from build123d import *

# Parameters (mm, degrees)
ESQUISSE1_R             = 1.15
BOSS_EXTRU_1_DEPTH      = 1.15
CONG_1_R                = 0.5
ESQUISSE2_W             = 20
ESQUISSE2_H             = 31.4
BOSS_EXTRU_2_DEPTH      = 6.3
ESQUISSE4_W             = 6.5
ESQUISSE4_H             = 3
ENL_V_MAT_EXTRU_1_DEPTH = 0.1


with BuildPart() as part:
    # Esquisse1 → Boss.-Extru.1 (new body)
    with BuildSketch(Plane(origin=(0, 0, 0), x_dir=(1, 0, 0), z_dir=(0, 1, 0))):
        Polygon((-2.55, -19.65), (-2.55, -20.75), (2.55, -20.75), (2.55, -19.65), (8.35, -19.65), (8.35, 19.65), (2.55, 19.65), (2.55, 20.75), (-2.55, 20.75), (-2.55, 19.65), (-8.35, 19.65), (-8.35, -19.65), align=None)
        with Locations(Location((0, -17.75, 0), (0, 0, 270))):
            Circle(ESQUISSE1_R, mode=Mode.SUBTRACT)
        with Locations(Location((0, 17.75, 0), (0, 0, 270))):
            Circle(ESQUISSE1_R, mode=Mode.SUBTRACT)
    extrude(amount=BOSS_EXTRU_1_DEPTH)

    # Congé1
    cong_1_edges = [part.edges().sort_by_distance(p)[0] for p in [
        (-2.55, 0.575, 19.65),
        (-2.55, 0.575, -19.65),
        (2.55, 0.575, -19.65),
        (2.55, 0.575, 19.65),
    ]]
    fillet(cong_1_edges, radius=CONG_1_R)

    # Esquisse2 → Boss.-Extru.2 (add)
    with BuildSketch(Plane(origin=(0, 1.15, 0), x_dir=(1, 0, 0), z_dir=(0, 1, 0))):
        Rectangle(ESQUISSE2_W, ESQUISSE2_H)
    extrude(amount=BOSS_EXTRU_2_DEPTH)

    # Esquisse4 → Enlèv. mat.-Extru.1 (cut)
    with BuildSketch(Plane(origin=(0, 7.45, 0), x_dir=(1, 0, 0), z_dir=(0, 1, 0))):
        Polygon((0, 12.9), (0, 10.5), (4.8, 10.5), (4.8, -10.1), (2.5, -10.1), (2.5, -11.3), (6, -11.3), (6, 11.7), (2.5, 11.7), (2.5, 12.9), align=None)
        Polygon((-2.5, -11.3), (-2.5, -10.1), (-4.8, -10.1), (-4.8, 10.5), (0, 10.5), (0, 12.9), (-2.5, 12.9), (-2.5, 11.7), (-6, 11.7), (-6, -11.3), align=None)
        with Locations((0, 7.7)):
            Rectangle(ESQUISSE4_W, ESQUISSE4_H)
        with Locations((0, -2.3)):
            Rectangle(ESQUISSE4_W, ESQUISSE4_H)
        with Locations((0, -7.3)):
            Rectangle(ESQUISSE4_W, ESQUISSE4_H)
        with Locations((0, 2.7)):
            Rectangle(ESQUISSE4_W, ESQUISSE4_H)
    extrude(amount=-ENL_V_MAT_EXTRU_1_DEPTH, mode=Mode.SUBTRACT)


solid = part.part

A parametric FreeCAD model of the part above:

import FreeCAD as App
import Part
import Sketcher
Q = App.Units.Quantity


def edges_at(feature, points):
    """Names of the edges that pass closest to the given points."""
    edges = feature.Shape.Edges
    near = lambda p: min(range(len(edges)), key=lambda i: edges[i].distToShape(Part.Vertex(*p))[0])
    return sorted({f"Edge{near(p) + 1}" for p in points})

doc = App.newDocument("Part")
body = doc.addObject("PartDesign::Body", "Body")

# Sketch on XZ plane
sketch1 = doc.addObject("Sketcher::SketchObject", "Sketch")
body.addObject(sketch1)
sketch1.AttachmentSupport = (doc.XZ_Plane, [""])
sketch1.MapMode = "FlatFace"
sketch1.addGeometry(Part.LineSegment(App.Vector(-2.5, 19.6, 0), App.Vector(-2.5, 20.8, 0)), False)
sketch1.addGeometry(Part.LineSegment(App.Vector(-2.5, 20.8, 0), App.Vector(2.5, 20.8, 0)), False)
sketch1.addGeometry(Part.LineSegment(App.Vector(2.5, 20.8, 0), App.Vector(2.5, 19.6, 0)), False)
sketch1.addGeometry(Part.LineSegment(App.Vector(2.5, 19.6, 0), App.Vector(8.3, 19.6, 0)), False)
sketch1.addGeometry(Part.LineSegment(App.Vector(8.3, 19.6, 0), App.Vector(8.3, -19.6, 0)), False)
sketch1.addGeometry(Part.LineSegment(App.Vector(8.3, -19.6, 0), App.Vector(2.5, -19.6, 0)), False)
sketch1.addGeometry(Part.LineSegment(App.Vector(2.5, -19.6, 0), App.Vector(2.5, -20.8, 0)), False)
sketch1.addGeometry(Part.LineSegment(App.Vector(2.5, -20.8, 0), App.Vector(-2.5, -20.8, 0)), False)
sketch1.addGeometry(Part.LineSegment(App.Vector(-2.5, -20.8, 0), App.Vector(-2.5, -19.6, 0)), False)
sketch1.addGeometry(Part.LineSegment(App.Vector(-2.5, -19.6, 0), App.Vector(-8.3, -19.6, 0)), False)
sketch1.addGeometry(Part.LineSegment(App.Vector(-8.3, -19.6, 0), App.Vector(-8.3, 19.6, 0)), False)
sketch1.addGeometry(Part.LineSegment(App.Vector(-8.3, 19.6, 0), App.Vector(-2.5, 19.6, 0)), False)
sketch1.addGeometry(Part.Circle(App.Vector(0, 17.8, 0), App.Vector(0, 0, 1), 1.1), False)
sketch1.addGeometry(Part.Circle(App.Vector(0, -17.8, 0), App.Vector(0, 0, 1), 1.1), False)
sketch1.addConstraint(Sketcher.Constraint("Coincident", 0, 2, 1, 1))
sketch1.addConstraint(Sketcher.Constraint("Coincident", 1, 2, 2, 1))
sketch1.addConstraint(Sketcher.Constraint("Coincident", 2, 2, 3, 1))
sketch1.addConstraint(Sketcher.Constraint("Coincident", 3, 2, 4, 1))
sketch1.addConstraint(Sketcher.Constraint("Coincident", 4, 2, 5, 1))
sketch1.addConstraint(Sketcher.Constraint("Coincident", 5, 2, 6, 1))
sketch1.addConstraint(Sketcher.Constraint("Coincident", 6, 2, 7, 1))
sketch1.addConstraint(Sketcher.Constraint("Coincident", 7, 2, 8, 1))
sketch1.addConstraint(Sketcher.Constraint("Coincident", 8, 2, 9, 1))
sketch1.addConstraint(Sketcher.Constraint("Coincident", 9, 2, 10, 1))
sketch1.addConstraint(Sketcher.Constraint("Coincident", 10, 2, 11, 1))
sketch1.addConstraint(Sketcher.Constraint("Coincident", 11, 2, 0, 1))
sketch1.addConstraint(Sketcher.Constraint("Vertical", 0))
sketch1.addConstraint(Sketcher.Constraint("Horizontal", 1))
sketch1.addConstraint(Sketcher.Constraint("Vertical", 2))
sketch1.addConstraint(Sketcher.Constraint("Horizontal", 3))
sketch1.addConstraint(Sketcher.Constraint("Vertical", 4))
sketch1.addConstraint(Sketcher.Constraint("Horizontal", 5))
sketch1.addConstraint(Sketcher.Constraint("Vertical", 6))
sketch1.addConstraint(Sketcher.Constraint("Horizontal", 7))
sketch1.addConstraint(Sketcher.Constraint("Vertical", 8))
sketch1.addConstraint(Sketcher.Constraint("Horizontal", 9))
sketch1.addConstraint(Sketcher.Constraint("Vertical", 10))
sketch1.addConstraint(Sketcher.Constraint("Horizontal", 11))
sketch1.addConstraint(Sketcher.Constraint("Equal", 12, 13))
sketch1.addConstraint(Sketcher.Constraint("Symmetric", 12, 3, 13, 3, -1, 1))
sketch1.addConstraint(Sketcher.Constraint("Symmetric", 0, 2, 6, 2, -1, 1))
sketch1.addConstraint(Sketcher.Constraint("Symmetric", 2, 2, 8, 2, -1, 1))
sketch1.addConstraint(Sketcher.Constraint("Symmetric", 4, 2, 10, 2, -1, 1))
sketch1.addConstraint(Sketcher.Constraint("Symmetric", 5, 2, 8, 2, -2))
sketch1.addConstraint(Sketcher.Constraint("PointOnObject", 12, 3, -2))
sketch1.addConstraint(Sketcher.Constraint("Diameter", 12, Q("2.3 mm")))
sketch1.addConstraint(Sketcher.Constraint("DistanceX", 1, 1, 1, 2, Q("5.1 mm")))
sketch1.addConstraint(Sketcher.Constraint("DistanceX", 3, 1, 3, 2, Q("5.8 mm")))
sketch1.addConstraint(Sketcher.Constraint("DistanceY", 0, 1, 0, 2, Q("1.1 mm")))
sketch1.addConstraint(Sketcher.Constraint("DistanceY", 4, 2, 4, 1, Q("39.3 mm")))
sketch1.addConstraint(Sketcher.Constraint("DistanceY", 12, 3, 0, 2, Q("3 mm")))
pad1 = doc.addObject("PartDesign::Pad", "Pad")
body.addObject(pad1)
pad1.Profile = sketch1
pad1.Length = 1.15
pad1.Reversed = True
doc.recompute()

fillet = doc.addObject("PartDesign::Fillet", "Fillet")
body.addObject(fillet)
fillet.Base = (pad1, edges_at(pad1, [
    (-2.55, 0.575, 19.65),
    (-2.55, 0.575, -19.65),
    (2.55, 0.575, -19.65),
    (2.55, 0.575, 19.65),
]))
fillet.Radius = 0.5

# Sketch on XZ plane
sketch2 = doc.addObject("Sketcher::SketchObject", "Sketch001")
body.addObject(sketch2)
sketch2.AttachmentSupport = (doc.XZ_Plane, [""])
sketch2.MapMode = "FlatFace"
sketch2.AttachmentOffset = App.Placement(App.Vector(0, 0, -1.15), App.Rotation())
sketch2.addGeometry(Part.LineSegment(App.Vector(-10, -16, 0), App.Vector(-10, 16, 0)), False)
sketch2.addGeometry(Part.LineSegment(App.Vector(-10, 16, 0), App.Vector(10, 16, 0)), False)
sketch2.addGeometry(Part.LineSegment(App.Vector(10, 16, 0), App.Vector(10, -16, 0)), False)
sketch2.addGeometry(Part.LineSegment(App.Vector(10, -16, 0), App.Vector(-10, -16, 0)), False)
sketch2.addConstraint(Sketcher.Constraint("Coincident", 0, 2, 1, 1))
sketch2.addConstraint(Sketcher.Constraint("Coincident", 1, 2, 2, 1))
sketch2.addConstraint(Sketcher.Constraint("Coincident", 2, 2, 3, 1))
sketch2.addConstraint(Sketcher.Constraint("Coincident", 3, 2, 0, 1))
sketch2.addConstraint(Sketcher.Constraint("Vertical", 0))
sketch2.addConstraint(Sketcher.Constraint("Horizontal", 1))
sketch2.addConstraint(Sketcher.Constraint("Vertical", 2))
sketch2.addConstraint(Sketcher.Constraint("Horizontal", 3))
sketch2.addConstraint(Sketcher.Constraint("Symmetric", 0, 2, 2, 2, -1, 1))
sketch2.addConstraint(Sketcher.Constraint("DistanceX", 1, 1, 1, 2, Q("20 mm")))
sketch2.addConstraint(Sketcher.Constraint("DistanceY", 0, 1, 0, 2, Q("31.4 mm")))
pad2 = doc.addObject("PartDesign::Pad", "Pad001")
body.addObject(pad2)
pad2.Profile = sketch2
pad2.Length = 6.3
pad2.Reversed = True

# Sketch on XZ plane
sketch3 = doc.addObject("Sketcher::SketchObject", "Sketch002")
body.addObject(sketch3)
sketch3.AttachmentSupport = (doc.XZ_Plane, [""])
sketch3.MapMode = "FlatFace"
sketch3.AttachmentOffset = App.Placement(App.Vector(0, 0, -7.45), App.Rotation())
sketch3.addGeometry(Part.LineSegment(App.Vector(4.8, -10.5, 0), App.Vector(4.8, 10.1, 0)), False)
sketch3.addGeometry(Part.LineSegment(App.Vector(4.8, 10.1, 0), App.Vector(2.5, 10.1, 0)), False)
sketch3.addGeometry(Part.LineSegment(App.Vector(2.5, 10.1, 0), App.Vector(2.5, 11.3, 0)), False)
sketch3.addGeometry(Part.LineSegment(App.Vector(2.5, 11.3, 0), App.Vector(6, 11.3, 0)), False)
sketch3.addGeometry(Part.LineSegment(App.Vector(6, 11.3, 0), App.Vector(6, -11.7, 0)), False)
sketch3.addGeometry(Part.LineSegment(App.Vector(6, -11.7, 0), App.Vector(2.5, -11.7, 0)), False)
sketch3.addGeometry(Part.LineSegment(App.Vector(2.5, -11.7, 0), App.Vector(2.5, -12.9, 0)), False)
sketch3.addGeometry(Part.LineSegment(App.Vector(2.5, -12.9, 0), App.Vector(-2.5, -12.9, 0)), False)
sketch3.addGeometry(Part.LineSegment(App.Vector(-2.5, -12.9, 0), App.Vector(-2.5, -11.7, 0)), False)
sketch3.addGeometry(Part.LineSegment(App.Vector(-2.5, -11.7, 0), App.Vector(-6, -11.7, 0)), False)
sketch3.addGeometry(Part.LineSegment(App.Vector(-6, -11.7, 0), App.Vector(-6, 11.3, 0)), False)
sketch3.addGeometry(Part.LineSegment(App.Vector(-6, 11.3, 0), App.Vector(-2.5, 11.3, 0)), False)
sketch3.addGeometry(Part.LineSegment(App.Vector(-2.5, 11.3, 0), App.Vector(-2.5, 10.1, 0)), False)
sketch3.addGeometry(Part.LineSegment(App.Vector(-2.5, 10.1, 0), App.Vector(-4.8, 10.1, 0)), False)
sketch3.addGeometry(Part.LineSegment(App.Vector(-4.8, 10.1, 0), App.Vector(-4.8, -10.5, 0)), False)
sketch3.addGeometry(Part.LineSegment(App.Vector(-4.8, -10.5, 0), App.Vector(4.8, -10.5, 0)), False)
sketch3.addGeometry(Part.LineSegment(App.Vector(-3.2, -9.2, 0), App.Vector(-3.2, -6.2, 0)), False)
sketch3.addGeometry(Part.LineSegment(App.Vector(-3.2, -6.2, 0), App.Vector(3.2, -6.2, 0)), False)
sketch3.addGeometry(Part.LineSegment(App.Vector(3.2, -6.2, 0), App.Vector(3.2, -9.2, 0)), False)
sketch3.addGeometry(Part.LineSegment(App.Vector(3.2, -9.2, 0), App.Vector(-3.2, -9.2, 0)), False)
sketch3.addGeometry(Part.LineSegment(App.Vector(-3.2, 0.8, 0), App.Vector(-3.2, 3.8, 0)), False)
sketch3.addGeometry(Part.LineSegment(App.Vector(-3.2, 3.8, 0), App.Vector(3.2, 3.8, 0)), False)
sketch3.addGeometry(Part.LineSegment(App.Vector(3.2, 3.8, 0), App.Vector(3.2, 0.8, 0)), False)
sketch3.addGeometry(Part.LineSegment(App.Vector(3.2, 0.8, 0), App.Vector(-3.2, 0.8, 0)), False)
sketch3.addGeometry(Part.LineSegment(App.Vector(-3.2, 5.8, 0), App.Vector(-3.2, 8.8, 0)), False)
sketch3.addGeometry(Part.LineSegment(App.Vector(-3.2, 8.8, 0), App.Vector(3.2, 8.8, 0)), False)
sketch3.addGeometry(Part.LineSegment(App.Vector(3.2, 8.8, 0), App.Vector(3.2, 5.8, 0)), False)
sketch3.addGeometry(Part.LineSegment(App.Vector(3.2, 5.8, 0), App.Vector(-3.2, 5.8, 0)), False)
sketch3.addGeometry(Part.LineSegment(App.Vector(-3.2, -4.2, 0), App.Vector(-3.2, -1.2, 0)), False)
sketch3.addGeometry(Part.LineSegment(App.Vector(-3.2, -1.2, 0), App.Vector(3.2, -1.2, 0)), False)
sketch3.addGeometry(Part.LineSegment(App.Vector(3.2, -1.2, 0), App.Vector(3.2, -4.2, 0)), False)
sketch3.addGeometry(Part.LineSegment(App.Vector(3.2, -4.2, 0), App.Vector(-3.2, -4.2, 0)), False)
sketch3.addConstraint(Sketcher.Constraint("Coincident", 0, 2, 1, 1))
sketch3.addConstraint(Sketcher.Constraint("Coincident", 1, 2, 2, 1))
sketch3.addConstraint(Sketcher.Constraint("Coincident", 2, 2, 3, 1))
sketch3.addConstraint(Sketcher.Constraint("Coincident", 3, 2, 4, 1))
sketch3.addConstraint(Sketcher.Constraint("Coincident", 4, 2, 5, 1))
sketch3.addConstraint(Sketcher.Constraint("Coincident", 5, 2, 6, 1))
sketch3.addConstraint(Sketcher.Constraint("Coincident", 6, 2, 7, 1))
sketch3.addConstraint(Sketcher.Constraint("Coincident", 7, 2, 8, 1))
sketch3.addConstraint(Sketcher.Constraint("Coincident", 8, 2, 9, 1))
sketch3.addConstraint(Sketcher.Constraint("Coincident", 9, 2, 10, 1))
sketch3.addConstraint(Sketcher.Constraint("Coincident", 10, 2, 11, 1))
sketch3.addConstraint(Sketcher.Constraint("Coincident", 11, 2, 12, 1))
sketch3.addConstraint(Sketcher.Constraint("Coincident", 12, 2, 13, 1))
sketch3.addConstraint(Sketcher.Constraint("Coincident", 13, 2, 14, 1))
sketch3.addConstraint(Sketcher.Constraint("Coincident", 14, 2, 15, 1))
sketch3.addConstraint(Sketcher.Constraint("Coincident", 15, 2, 0, 1))
sketch3.addConstraint(Sketcher.Constraint("Coincident", 16, 2, 17, 1))
sketch3.addConstraint(Sketcher.Constraint("Coincident", 17, 2, 18, 1))
sketch3.addConstraint(Sketcher.Constraint("Coincident", 18, 2, 19, 1))
sketch3.addConstraint(Sketcher.Constraint("Coincident", 19, 2, 16, 1))
sketch3.addConstraint(Sketcher.Constraint("Coincident", 20, 2, 21, 1))
sketch3.addConstraint(Sketcher.Constraint("Coincident", 21, 2, 22, 1))
sketch3.addConstraint(Sketcher.Constraint("Coincident", 22, 2, 23, 1))
sketch3.addConstraint(Sketcher.Constraint("Coincident", 23, 2, 20, 1))
sketch3.addConstraint(Sketcher.Constraint("Coincident", 24, 2, 25, 1))
sketch3.addConstraint(Sketcher.Constraint("Coincident", 25, 2, 26, 1))
sketch3.addConstraint(Sketcher.Constraint("Coincident", 26, 2, 27, 1))
sketch3.addConstraint(Sketcher.Constraint("Coincident", 27, 2, 24, 1))
sketch3.addConstraint(Sketcher.Constraint("Coincident", 28, 2, 29, 1))
sketch3.addConstraint(Sketcher.Constraint("Coincident", 29, 2, 30, 1))
sketch3.addConstraint(Sketcher.Constraint("Coincident", 30, 2, 31, 1))
sketch3.addConstraint(Sketcher.Constraint("Coincident", 31, 2, 28, 1))
sketch3.addConstraint(Sketcher.Constraint("Vertical", 0))
sketch3.addConstraint(Sketcher.Constraint("Horizontal", 1))
sketch3.addConstraint(Sketcher.Constraint("Vertical", 2))
sketch3.addConstraint(Sketcher.Constraint("Horizontal", 3))
sketch3.addConstraint(Sketcher.Constraint("Vertical", 4))
sketch3.addConstraint(Sketcher.Constraint("Horizontal", 5))
sketch3.addConstraint(Sketcher.Constraint("Vertical", 6))
sketch3.addConstraint(Sketcher.Constraint("Horizontal", 7))
sketch3.addConstraint(Sketcher.Constraint("Vertical", 8))
sketch3.addConstraint(Sketcher.Constraint("Horizontal", 9))
sketch3.addConstraint(Sketcher.Constraint("Vertical", 10))
sketch3.addConstraint(Sketcher.Constraint("Horizontal", 11))
sketch3.addConstraint(Sketcher.Constraint("Vertical", 12))
sketch3.addConstraint(Sketcher.Constraint("Horizontal", 13))
sketch3.addConstraint(Sketcher.Constraint("Vertical", 14))
sketch3.addConstraint(Sketcher.Constraint("Horizontal", 15))
sketch3.addConstraint(Sketcher.Constraint("Vertical", 16))
sketch3.addConstraint(Sketcher.Constraint("Horizontal", 17))
sketch3.addConstraint(Sketcher.Constraint("Vertical", 18))
sketch3.addConstraint(Sketcher.Constraint("Horizontal", 19))
sketch3.addConstraint(Sketcher.Constraint("Vertical", 20))
sketch3.addConstraint(Sketcher.Constraint("Horizontal", 21))
sketch3.addConstraint(Sketcher.Constraint("Vertical", 22))
sketch3.addConstraint(Sketcher.Constraint("Horizontal", 23))
sketch3.addConstraint(Sketcher.Constraint("Vertical", 24))
sketch3.addConstraint(Sketcher.Constraint("Horizontal", 25))
sketch3.addConstraint(Sketcher.Constraint("Vertical", 26))
sketch3.addConstraint(Sketcher.Constraint("Horizontal", 27))
sketch3.addConstraint(Sketcher.Constraint("Vertical", 28))
sketch3.addConstraint(Sketcher.Constraint("Horizontal", 29))
sketch3.addConstraint(Sketcher.Constraint("Vertical", 30))
sketch3.addConstraint(Sketcher.Constraint("Horizontal", 31))
sketch3.addConstraint(Sketcher.Constraint("Symmetric", 5, 2, 8, 2, -2))
sketch3.addConstraint(Sketcher.Constraint("Symmetric", 3, 2, 10, 2, -2))
sketch3.addConstraint(Sketcher.Constraint("Symmetric", 1, 2, 12, 2, -2))
sketch3.addConstraint(Sketcher.Constraint("Vertical", 2, 2, 5, 2))
sketch3.addConstraint(Sketcher.Constraint("Vertical", 19, 2, 20, 2))
sketch3.addConstraint(Sketcher.Constraint("Vertical", 18, 2, 21, 2))
sketch3.addConstraint(Sketcher.Constraint("Vertical", 23, 2, 24, 2))
sketch3.addConstraint(Sketcher.Constraint("Vertical", 22, 2, 25, 2))
sketch3.addConstraint(Sketcher.Constraint("Vertical", 27, 2, 28, 2))
sketch3.addConstraint(Sketcher.Constraint("Vertical", 26, 2, 29, 2))
sketch3.addConstraint(Sketcher.Constraint("Equal", 1, 13))
sketch3.addConstraint(Sketcher.Constraint("Equal", 2, 6))
sketch3.addConstraint(Sketcher.Constraint("Equal", 18, 20))
sketch3.addConstraint(Sketcher.Constraint("Equal", 22, 24))
sketch3.addConstraint(Sketcher.Constraint("Equal", 26, 28))
sketch3.addConstraint(Sketcher.Constraint("DistanceX", 7, 2, 7, 1, Q("5 mm")))
sketch3.addConstraint(Sketcher.Constraint("DistanceY", 4, 2, 4, 1, Q("23 mm")))
sketch3.addConstraint(Sketcher.Constraint("DistanceY", 16, 1, 16, 2, Q("3 mm")))
sketch3.addConstraint(Sketcher.Constraint("DistanceX", 1, 2, 1, 1, Q("2.3 mm")))
sketch3.addConstraint(Sketcher.Constraint("DistanceX", 3, 1, 3, 2, Q("3.5 mm")))
sketch3.addConstraint(Sketcher.Constraint("DistanceX", 17, 1, 17, 2, Q("6.5 mm")))
sketch3.addConstraint(Sketcher.Constraint("DistanceY", 0, 1, 0, 2, Q("20.6 mm")))
sketch3.addConstraint(Sketcher.Constraint("DistanceY", 2, 1, 2, 2, Q("1.2 mm")))
sketch3.addConstraint(Sketcher.Constraint("DistanceY", 17, 2, 22, 2, Q("7 mm")))
sketch3.addConstraint(Sketcher.Constraint("DistanceY", 20, 2, 24, 2, Q("5 mm")))
sketch3.addConstraint(Sketcher.Constraint("DistanceY", 28, 2, 23, 2, Q("2 mm")))
sketch3.addConstraint(Sketcher.Constraint("DistanceY", -1, 1, 0, 2, Q("10.1 mm")))
sketch3.addConstraint(Sketcher.Constraint("DistanceY", 16, 2, -1, 1, Q("6.2 mm")))
sketch3.addConstraint(Sketcher.Constraint("DistanceX", 16, 2, -1, 1, Q("3.25 mm")))
pocket1 = doc.addObject("PartDesign::Pocket", "Pocket")
body.addObject(pocket1)
pocket1.Profile = sketch3
pocket1.Length = 0.1
pocket1.Reversed = True

doc.recompute()
